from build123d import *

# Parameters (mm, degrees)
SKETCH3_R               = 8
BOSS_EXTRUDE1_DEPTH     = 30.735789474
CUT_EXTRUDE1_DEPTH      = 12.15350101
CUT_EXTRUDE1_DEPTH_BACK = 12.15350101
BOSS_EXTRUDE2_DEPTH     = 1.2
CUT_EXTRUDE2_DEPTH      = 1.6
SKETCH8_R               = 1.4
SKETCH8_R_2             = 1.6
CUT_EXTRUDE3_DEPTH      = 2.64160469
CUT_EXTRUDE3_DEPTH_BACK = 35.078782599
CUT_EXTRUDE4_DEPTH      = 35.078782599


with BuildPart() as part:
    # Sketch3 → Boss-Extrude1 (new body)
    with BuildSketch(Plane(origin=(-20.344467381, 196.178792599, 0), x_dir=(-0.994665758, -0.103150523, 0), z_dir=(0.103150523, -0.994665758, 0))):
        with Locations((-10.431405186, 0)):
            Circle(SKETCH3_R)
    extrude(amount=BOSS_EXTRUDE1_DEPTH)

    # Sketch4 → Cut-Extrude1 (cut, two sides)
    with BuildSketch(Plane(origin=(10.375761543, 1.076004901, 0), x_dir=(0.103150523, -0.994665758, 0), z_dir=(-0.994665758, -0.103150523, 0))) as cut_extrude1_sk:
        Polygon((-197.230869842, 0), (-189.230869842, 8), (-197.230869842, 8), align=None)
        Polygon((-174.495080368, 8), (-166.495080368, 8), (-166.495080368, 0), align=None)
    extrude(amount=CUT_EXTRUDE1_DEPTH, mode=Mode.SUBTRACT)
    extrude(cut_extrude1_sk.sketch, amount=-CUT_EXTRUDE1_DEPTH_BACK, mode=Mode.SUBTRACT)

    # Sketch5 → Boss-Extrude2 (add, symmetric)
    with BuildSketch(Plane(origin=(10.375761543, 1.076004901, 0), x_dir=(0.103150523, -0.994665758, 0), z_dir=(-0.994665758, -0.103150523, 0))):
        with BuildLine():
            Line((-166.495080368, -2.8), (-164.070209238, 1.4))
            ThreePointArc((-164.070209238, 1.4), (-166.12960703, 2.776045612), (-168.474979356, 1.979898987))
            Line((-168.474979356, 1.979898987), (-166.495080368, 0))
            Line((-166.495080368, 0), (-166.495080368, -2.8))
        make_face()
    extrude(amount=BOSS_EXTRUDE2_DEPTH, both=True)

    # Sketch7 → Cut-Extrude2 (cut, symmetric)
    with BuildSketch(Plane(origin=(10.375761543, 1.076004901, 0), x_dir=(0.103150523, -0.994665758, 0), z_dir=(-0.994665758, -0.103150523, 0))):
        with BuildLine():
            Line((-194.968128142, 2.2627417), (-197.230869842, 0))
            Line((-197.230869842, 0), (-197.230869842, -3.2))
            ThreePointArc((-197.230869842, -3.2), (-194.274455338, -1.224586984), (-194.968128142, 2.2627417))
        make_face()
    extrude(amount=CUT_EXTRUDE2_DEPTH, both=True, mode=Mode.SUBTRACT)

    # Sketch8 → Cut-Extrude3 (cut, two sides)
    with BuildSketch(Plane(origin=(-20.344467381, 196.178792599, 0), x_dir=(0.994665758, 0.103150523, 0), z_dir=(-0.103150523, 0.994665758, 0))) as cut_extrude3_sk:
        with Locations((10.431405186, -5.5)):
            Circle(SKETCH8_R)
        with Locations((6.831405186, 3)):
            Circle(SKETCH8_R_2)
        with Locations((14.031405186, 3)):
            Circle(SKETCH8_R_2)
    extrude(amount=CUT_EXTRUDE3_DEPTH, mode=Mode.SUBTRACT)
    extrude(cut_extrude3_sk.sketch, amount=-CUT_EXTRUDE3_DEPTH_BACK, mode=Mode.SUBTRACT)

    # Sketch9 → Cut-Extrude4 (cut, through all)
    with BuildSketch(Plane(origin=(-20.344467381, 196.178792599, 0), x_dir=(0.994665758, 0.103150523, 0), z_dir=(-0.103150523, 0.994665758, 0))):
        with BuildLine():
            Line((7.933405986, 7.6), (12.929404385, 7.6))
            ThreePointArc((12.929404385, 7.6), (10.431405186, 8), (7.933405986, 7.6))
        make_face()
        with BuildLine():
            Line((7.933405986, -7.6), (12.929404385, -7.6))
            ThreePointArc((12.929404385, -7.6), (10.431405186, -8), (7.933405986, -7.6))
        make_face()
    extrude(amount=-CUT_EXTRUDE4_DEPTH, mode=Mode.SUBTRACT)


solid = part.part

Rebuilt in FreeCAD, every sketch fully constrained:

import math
import FreeCAD as App
import Part
import Sketcher

V = App.Vector
Q = App.Units.Quantity


def add_polygon(sketch, points):
    """Adds a closed chain of lines whose ends are joined by coincident constraints."""
    first, n = sketch.GeometryCount, len(points)
    for a, b in zip(points, points[1:] + points[:1]):
        sketch.addGeometry(Part.LineSegment(App.Vector(*a, 0), App.Vector(*b, 0)), False)
    for i in range(n):
        sketch.addConstraint(Sketcher.Constraint("Coincident", first + i, 2, first + (i + 1) % n, 1))

doc = App.newDocument("Part")
body = doc.addObject("PartDesign::Body", "Body")

sketch1 = doc.addObject("Sketcher::SketchObject", "Sketch")
body.addObject(sketch1)
sketch1.Placement = App.Placement(V(-20.344467, 196.178793, 0), App.Rotation(V(-0.994665758, -0.103150523, 0), V(0, 0, -1.000000001), V(0.103150523, -0.994665758, 0), "ZXY"))
sketch1.addGeometry(Part.Circle(V(-10, 0, 0), V(0, 0, 1), 8), False)
sketch1.addConstraint([
    Sketcher.Constraint("PointOnObject", 0, 3, -1),
    Sketcher.Constraint("Diameter", 0, 16.0),
    Sketcher.Constraint("DistanceX", 0, 3, -1, 1, 10.431405),
])
pad1 = doc.addObject("PartDesign::Pad", "Pad")
body.addObject(pad1)
pad1.Profile = sketch1
pad1.Length = 30.735789

sketch2 = doc.addObject("Sketcher::SketchObject", "Sketch001")
body.addObject(sketch2)
sketch2.Placement = App.Placement(V(10.375762, 1.076005, 0), App.Rotation(V(0.103150523, -0.994665758, 0), V(0, 0, 1.000000001), V(-0.994665758, -0.103150523, 0), "ZXY"))
add_polygon(sketch2, [(-197, 0), (-189, 8), (-197, 8)])
add_polygon(sketch2, [(-166, 8), (-174, 8), (-166, 0)])
sketch2.addConstraint([
    Sketcher.Constraint("Horizontal", 1),
    Sketcher.Constraint("Vertical", 2),
    Sketcher.Constraint("Horizontal", 3),
    Sketcher.Constraint("Vertical", 5),
    Sketcher.Constraint("PointOnObject", 2, 2, -1),
    Sketcher.Constraint("PointOnObject", 4, 2, -1),
    Sketcher.Constraint("Perpendicular", 0, 4),
    Sketcher.Constraint("Horizontal", 1, 2, 3, 2),
    Sketcher.Constraint("Equal", 1, 3),
    Sketcher.Constraint("DistanceX", 1, 2, 1, 1, 8.0),
    Sketcher.Constraint("DistanceX", 0, 2, -1, 1, 189.23087),
    Sketcher.Constraint("DistanceX", 3, 2, -1, 1, 174.49508),
])
pocket1 = doc.addObject("PartDesign::Pocket", "Pocket")
body.addObject(pocket1)
pocket1.Profile = sketch2
pocket1.Type = "ThroughAll"
pocket1.Midplane = True

sketch3 = doc.addObject("Sketcher::SketchObject", "Sketch002")
body.addObject(sketch3)
sketch3.Placement = App.Placement(V(10.375762, 1.076005, 0), App.Rotation(V(0.103150523, -0.994665758, 0), V(0, 0, 1.000000001), V(-0.994665758, -0.103150523, 0), "ZXY"))
sketch3.addGeometry([
    Part.LineSegment(V(-166.5, -2.8, 0), V(-164.1, 1.4, 0)),
    Part.ArcOfCircle(Part.Circle(V(-166.5, 0, 0), V(0, 0, 1), 2.8), math.radians(30), math.radians(135)),
    Part.LineSegment(V(-168.5, 2, 0), V(-166.5, 0, 0)),
    Part.LineSegment(V(-166.5, 0, 0), V(-166.5, -2.8, 0)),
], False)
sketch3.addConstraint([
    Sketcher.Constraint("Coincident", 0, 2, 1, 1),
    Sketcher.Constraint("Coincident", 1, 2, 2, 1),
    Sketcher.Constraint("Coincident", 2, 2, 3, 1),
    Sketcher.Constraint("Coincident", 3, 2, 0, 1),
    Sketcher.Constraint("Vertical", 3),
    Sketcher.Constraint("Coincident", 2, 2, 1, 3),
    Sketcher.Constraint("PointOnObject", 1, 3, -1),
    Sketcher.Constraint("Radius", 1, 2.8),
    Sketcher.Constraint("Angle", 0, Q("60 deg")),
    Sketcher.Constraint("Angle", 2, Q("-45 deg")),
    Sketcher.Constraint("DistanceY", 3, 2, 3, 1, 2.8),
    Sketcher.Constraint("DistanceX", 1, 3, -1, 1, 166.49508),
])
pad2 = doc.addObject("PartDesign::Pad", "Pad001")
body.addObject(pad2)
pad2.Profile = sketch3
pad2.Length = 2.4
pad2.Midplane = True

sketch4 = doc.addObject("Sketcher::SketchObject", "Sketch003")
body.addObject(sketch4)
sketch4.Placement = App.Placement(V(10.375762, 1.076005, 0), App.Rotation(V(0.103150523, -0.994665758, 0), V(0, 0, 1.000000001), V(-0.994665758, -0.103150523, 0), "ZXY"))
sketch4.addGeometry([
    Part.LineSegment(V(-195, 2.3, 0), V(-197.2, 0, 0)),
    Part.LineSegment(V(-197.2, 0, 0), V(-197.2, -3.2, 0)),
    Part.ArcOfCircle(Part.Circle(V(-197.2, 0, 0), V(0, 0, 1), 3.2), math.radians(-90), math.radians(45)),
], False)
sketch4.addConstraint([
    Sketcher.Constraint("Coincident", 0, 2, 1, 1),
    Sketcher.Constraint("Coincident", 1, 2, 2, 1),
    Sketcher.Constraint("Coincident", 2, 2, 0, 1),
    Sketcher.Constraint("Vertical", 1),
    Sketcher.Constraint("Coincident", 0, 2, 2, 3),
    Sketcher.Constraint("PointOnObject", 2, 3, -1),
    Sketcher.Constraint("Radius", 2, 3.2),
    Sketcher.Constraint("Angle", 0, Q("-135 deg")),
    Sketcher.Constraint("DistanceX", 2, 3, -1, 1, 197.23087),
])
pocket2 = doc.addObject("PartDesign::Pocket", "Pocket001")
body.addObject(pocket2)
pocket2.Profile = sketch4
pocket2.Length = 3.2
pocket2.Midplane = True

sketch5 = doc.addObject("Sketcher::SketchObject", "Sketch004")
body.addObject(sketch5)
sketch5.Placement = App.Placement(V(-20.344467, 196.178793, 0), App.Rotation(V(0.994665758, 0.103150523, 0), V(0, 0, -1.000000001), V(-0.103150523, 0.994665758, 0), "ZXY"))
sketch5.addGeometry([
    Part.Circle(V(10.4, -5.5, 0), V(0, 0, 1), 1.4),
    Part.Circle(V(6.8, 3, 0), V(0, 0, 1), 1.6),
    Part.Circle(V(14, 3, 0), V(0, 0, 1), 1.6),
], False)
sketch5.addConstraint([
    Sketcher.Constraint("Equal", 1, 2),
    Sketcher.Constraint("Horizontal", 1, 3, 2, 3),
    Sketcher.Constraint("Diameter", 0, 2.8),
    Sketcher.Constraint("Diameter", 1, 3.2),
    Sketcher.Constraint("DistanceY", -1, 1, 1, 3, 3.0),
    Sketcher.Constraint("DistanceY", 0, 3, -1, 1, 5.5),
    Sketcher.Constraint("DistanceX", 1, 3, 0, 3, 3.6),
    Sketcher.Constraint("DistanceX", 1, 3, 2, 3, 7.2),
    Sketcher.Constraint("DistanceX", -1, 1, 0, 3, 10.431405),
])
pocket3 = doc.addObject("PartDesign::Pocket", "Pocket002")
body.addObject(pocket3)
pocket3.Profile = sketch5
pocket3.Type = "ThroughAll"
pocket3.Midplane = True

sketch6 = doc.addObject("Sketcher::SketchObject", "Sketch005")
body.addObject(sketch6)
sketch6.Placement = App.Placement(V(-20.344467, 196.178793, 0), App.Rotation(V(0.994665758, 0.103150523, 0), V(0, 0, -1.000000001), V(-0.103150523, 0.994665758, 0), "ZXY"))
sketch6.addGeometry([
    Part.LineSegment(V(7.9, 7.6, 0), V(12.9, 7.6, 0)),
    Part.ArcOfCircle(Part.Circle(V(10.4, 0, 0), V(0, 0, 1), 8), math.radians(72), math.radians(108)),
    Part.LineSegment(V(12.9, -7.6, 0), V(7.9, -7.6, 0)),
    Part.ArcOfCircle(Part.Circle(V(10.4, 0, 0), V(0, 0, 1), 8), math.radians(-108), math.radians(-72)),
], False)
sketch6.addConstraint([
    Sketcher.Constraint("Coincident", 0, 1, 1, 2),
    Sketcher.Constraint("Coincident", 1, 1, 0, 2),
    Sketcher.Constraint("Coincident", 2, 1, 3, 2),
    Sketcher.Constraint("Coincident", 3, 1, 2, 2),
    Sketcher.Constraint("Horizontal", 0),
    Sketcher.Constraint("Horizontal", 2),
    Sketcher.Constraint("Coincident", 3, 3, 1, 3),
    Sketcher.Constraint("Equal", 1, 3),
    Sketcher.Constraint("Symmetric", 1, 1, 2, 1, -1),
    Sketcher.Constraint("Radius", 1, 8.0),
    Sketcher.Constraint("DistanceY", -1, 1, 0, 1, 7.6),
    Sketcher.Constraint("DistanceX", -1, 1, 1, 3, 10.431405),
])
pocket4 = doc.addObject("PartDesign::Pocket", "Pocket003")
body.addObject(pocket4)
pocket4.Profile = sketch6
pocket4.Type = "ThroughAll"

doc.recompute()
